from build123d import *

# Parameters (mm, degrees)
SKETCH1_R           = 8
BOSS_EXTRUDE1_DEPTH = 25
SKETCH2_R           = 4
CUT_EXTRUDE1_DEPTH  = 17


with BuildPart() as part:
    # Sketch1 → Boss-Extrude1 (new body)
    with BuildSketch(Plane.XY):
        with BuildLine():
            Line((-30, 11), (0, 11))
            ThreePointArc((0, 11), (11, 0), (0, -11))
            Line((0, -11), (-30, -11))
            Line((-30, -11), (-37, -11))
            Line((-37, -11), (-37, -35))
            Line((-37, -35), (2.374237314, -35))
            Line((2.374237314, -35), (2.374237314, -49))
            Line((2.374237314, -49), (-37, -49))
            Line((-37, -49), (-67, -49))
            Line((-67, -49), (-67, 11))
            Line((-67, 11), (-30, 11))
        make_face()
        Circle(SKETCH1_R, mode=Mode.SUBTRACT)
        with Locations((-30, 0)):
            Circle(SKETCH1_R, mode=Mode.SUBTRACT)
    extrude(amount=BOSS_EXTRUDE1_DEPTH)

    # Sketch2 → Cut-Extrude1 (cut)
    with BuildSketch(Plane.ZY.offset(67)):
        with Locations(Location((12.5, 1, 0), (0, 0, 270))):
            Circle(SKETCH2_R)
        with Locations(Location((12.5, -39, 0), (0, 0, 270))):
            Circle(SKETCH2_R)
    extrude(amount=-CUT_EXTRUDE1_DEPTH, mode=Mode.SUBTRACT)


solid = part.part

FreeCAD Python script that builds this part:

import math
import FreeCAD as App
import Part
import Sketcher
from FreeCAD import Vector

doc = App.newDocument("Part")
params = doc.addObject("Spreadsheet::Sheet", "Params")
for row, (alias, value) in enumerate([
    ("sketch1_diameter", "16 mm"),
    ("sketch1_radius", "11 mm"),
    ("sketch1_width", "67 mm"),
    ("sketch1_width2", "37 mm"),
    ("sketch1_height", "60 mm"),
    ("pad1_length", "25 mm"),
    ("sketch2_diameter", "8 mm"),
    ("pocket1_length", "17 mm"),
], start=1):
    params.set(f"A{row}", alias)
    params.set(f"B{row}", "=" + value)
    params.setAlias(f"B{row}", alias)

body = doc.addObject("PartDesign::Body", "Body")

# Sketch on XY plane
sketch1 = body.newObject("Sketcher::SketchObject", "Sketch")
sketch1.AttachmentSupport = (doc.getObject("XY_Plane"), [""])
sketch1.MapMode = "FlatFace"
sketch1.addGeometry(Part.ArcOfCircle(Part.Circle(Vector(0, 0, 0), Vector(0, 0, 1), 11), math.radians(-90), math.radians(90)), False)
sketch1.addGeometry(Part.LineSegment(Vector(0, 11, 0), Vector(-67, 11, 0)), False)
sketch1.addGeometry(Part.LineSegment(Vector(-67, 11, 0), Vector(-67, -49, 0)), False)
sketch1.addGeometry(Part.LineSegment(Vector(-67, -49, 0), Vector(2.374237, -49, 0)), False)
sketch1.addGeometry(Part.LineSegment(Vector(2.374237, -49, 0), Vector(2.374237, -35, 0)), False)
sketch1.addGeometry(Part.LineSegment(Vector(2.374237, -35, 0), Vector(-37, -35, 0)), False)
sketch1.addGeometry(Part.LineSegment(Vector(-37, -35, 0), Vector(-37, -11, 0)), False)
sketch1.addGeometry(Part.LineSegment(Vector(-37, -11, 0), Vector(0, -11, 0)), False)
sketch1.addGeometry(Part.Circle(Vector(0, 0, 0), Vector(0, 0, 1), 8), False)
sketch1.addGeometry(Part.Circle(Vector(-30, 0, 0), Vector(0, 0, 1), 8), False)
sketch1.addConstraint(Sketcher.Constraint("Tangent", 0, 2, 1, 1))
sketch1.addConstraint(Sketcher.Constraint("Coincident", 1, 2, 2, 1))
sketch1.addConstraint(Sketcher.Constraint("Coincident", 2, 2, 3, 1))
sketch1.addConstraint(Sketcher.Constraint("Coincident", 3, 2, 4, 1))
sketch1.addConstraint(Sketcher.Constraint("Coincident", 4, 2, 5, 1))
sketch1.addConstraint(Sketcher.Constraint("Coincident", 5, 2, 6, 1))
sketch1.addConstraint(Sketcher.Constraint("Coincident", 6, 2, 7, 1))
sketch1.addConstraint(Sketcher.Constraint("Tangent", 7, 2, 0, 1))
sketch1.addConstraint(Sketcher.Constraint("Horizontal", 1))
sketch1.addConstraint(Sketcher.Constraint("Vertical", 2))
sketch1.addConstraint(Sketcher.Constraint("Horizontal", 3))
sketch1.addConstraint(Sketcher.Constraint("Vertical", 4))
sketch1.addConstraint(Sketcher.Constraint("Horizontal", 5))
sketch1.addConstraint(Sketcher.Constraint("Vertical", 6))
sketch1.addConstraint(Sketcher.Constraint("Horizontal", 7))
sketch1.addConstraint(Sketcher.Constraint("Coincident", 0, 3, -1, 1))
sketch1.addConstraint(Sketcher.Constraint("Coincident", 8, 3, -1, 1))
sketch1.addConstraint(Sketcher.Constraint("Equal", 8, 9))
sketch1.addConstraint(Sketcher.Constraint("PointOnObject", 9, 3, -1))
sketch1.addConstraint(Sketcher.Constraint("Diameter", 8, 16.0))
sketch1.addConstraint(Sketcher.Constraint("Radius", 0, 11.0))
sketch1.addConstraint(Sketcher.Constraint("DistanceX", 1, 2, 1, 1, 67.0))
sketch1.addConstraint(Sketcher.Constraint("DistanceX", 7, 1, 7, 2, 37.0))
sketch1.addConstraint(Sketcher.Constraint("DistanceY", 2, 2, 2, 1, 60.0))
sketch1.addConstraint(Sketcher.Constraint("DistanceY", 4, 1, 4, 2, 14.0))
sketch1.addConstraint(Sketcher.Constraint("DistanceX", 9, 3, -1, 1, 30.0))
sketch1.addConstraint(Sketcher.Constraint("DistanceX", 3, 1, 3, 2, 69.374237))
sketch1.setExpression("Constraints[19]", "Params.sketch1_diameter")
sketch1.setExpression("Constraints[20]", "Params.sketch1_radius")
sketch1.setExpression("Constraints[21]", "Params.sketch1_width")
sketch1.setExpression("Constraints[22]", "Params.sketch1_width2")
sketch1.setExpression("Constraints[23]", "Params.sketch1_height")
pad1 = body.newObject("PartDesign::Pad", "Pad")
pad1.Profile = sketch1
pad1.setExpression("Length", "Params.pad1_length")

# Sketch on YZ plane
sketch2 = body.newObject("Sketcher::SketchObject", "Sketch001")
sketch2.AttachmentSupport = (doc.getObject("YZ_Plane"), [""])
sketch2.MapMode = "FlatFace"
sketch2.AttachmentOffset = App.Placement(Vector(0, 0, -67), App.Rotation())
sketch2.addGeometry(Part.Circle(Vector(1, 12.5, 0), Vector(0, 0, 1), 4), False)
sketch2.addGeometry(Part.Circle(Vector(-39, 12.5, 0), Vector(0, 0, 1), 4), False)
sketch2.addConstraint(Sketcher.Constraint("Equal", 0, 1))
sketch2.addConstraint(Sketcher.Constraint("Horizontal", 0, 3, 1, 3))
sketch2.addConstraint(Sketcher.Constraint("Diameter", 0, 8.0))
sketch2.addConstraint(Sketcher.Constraint("DistanceX", -1, 1, 0, 3, 1.0))
sketch2.addConstraint(Sketcher.Constraint("DistanceX", 1, 3, -1, 1, 39.0))
sketch2.addConstraint(Sketcher.Constraint("DistanceY", -1, 1, 0, 3, 12.5))
sketch2.setExpression("Constraints[2]", "Params.sketch2_diameter")
pocket1 = body.newObject("PartDesign::Pocket", "Pocket")
pocket1.Profile = sketch2
pocket1.setExpression("Length", "Params.pocket1_length")
pocket1.Reversed = True

doc.recompute()
